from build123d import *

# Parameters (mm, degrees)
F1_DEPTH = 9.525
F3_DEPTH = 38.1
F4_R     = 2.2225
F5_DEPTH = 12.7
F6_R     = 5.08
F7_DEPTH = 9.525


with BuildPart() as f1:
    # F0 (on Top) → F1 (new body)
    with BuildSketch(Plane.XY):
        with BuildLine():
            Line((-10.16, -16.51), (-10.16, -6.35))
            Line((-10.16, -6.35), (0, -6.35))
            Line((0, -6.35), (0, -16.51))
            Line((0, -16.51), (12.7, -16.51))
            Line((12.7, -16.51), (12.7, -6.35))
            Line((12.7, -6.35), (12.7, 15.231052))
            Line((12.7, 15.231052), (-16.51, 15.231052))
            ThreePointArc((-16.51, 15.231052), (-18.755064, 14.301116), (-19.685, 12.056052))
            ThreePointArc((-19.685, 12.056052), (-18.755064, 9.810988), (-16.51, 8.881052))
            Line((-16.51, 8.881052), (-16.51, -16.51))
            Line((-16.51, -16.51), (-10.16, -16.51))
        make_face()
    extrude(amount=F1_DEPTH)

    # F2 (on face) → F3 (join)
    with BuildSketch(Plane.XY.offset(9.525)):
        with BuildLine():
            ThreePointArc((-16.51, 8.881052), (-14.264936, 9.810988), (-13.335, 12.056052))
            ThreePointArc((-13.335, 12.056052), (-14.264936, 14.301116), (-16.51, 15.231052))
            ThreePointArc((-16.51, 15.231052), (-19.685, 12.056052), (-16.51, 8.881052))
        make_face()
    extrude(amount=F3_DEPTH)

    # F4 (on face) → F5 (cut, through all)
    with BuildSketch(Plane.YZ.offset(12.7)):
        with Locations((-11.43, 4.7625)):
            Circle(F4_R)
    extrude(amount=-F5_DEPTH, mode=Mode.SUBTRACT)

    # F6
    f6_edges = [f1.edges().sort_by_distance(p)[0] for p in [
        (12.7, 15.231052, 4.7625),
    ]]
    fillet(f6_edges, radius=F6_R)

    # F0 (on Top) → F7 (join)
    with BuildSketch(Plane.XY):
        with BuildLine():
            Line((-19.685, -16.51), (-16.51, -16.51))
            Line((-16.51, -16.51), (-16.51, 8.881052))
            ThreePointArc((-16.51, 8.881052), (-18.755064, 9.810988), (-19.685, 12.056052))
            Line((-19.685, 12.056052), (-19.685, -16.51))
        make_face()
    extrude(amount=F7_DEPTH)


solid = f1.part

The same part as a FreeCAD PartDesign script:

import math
import FreeCAD as App
import Part
import Sketcher
from FreeCAD import Vector
Q = App.Units.Quantity


def edges_at(feature, points):
    """Names of the edges that pass closest to the given points."""
    edges = feature.Shape.Edges
    near = lambda p: min(range(len(edges)), key=lambda i: edges[i].distToShape(Part.Vertex(*p))[0])
    return sorted({f"Edge{near(p) + 1}" for p in points})

doc = App.newDocument("Part")
body = doc.addObject("PartDesign::Body", "Body")

# Sketch on XY plane
sketch1 = body.newObject("Sketcher::SketchObject", "Sketch")
sketch1.AttachmentSupport = (doc.getObject("XY_Plane"), [""])
sketch1.MapMode = "FlatFace"
sketch1.addGeometry(Part.LineSegment(Vector(-10.16, -16.51, 0), Vector(-10.16, -6.35, 0)), False)
sketch1.addGeometry(Part.LineSegment(Vector(-10.16, -6.35, 0), Vector(0, -6.35, 0)), False)
sketch1.addGeometry(Part.LineSegment(Vector(0, -6.35, 0), Vector(0, -16.51, 0)), False)
sketch1.addGeometry(Part.LineSegment(Vector(0, -16.51, 0), Vector(12.7, -16.51, 0)), False)
sketch1.addGeometry(Part.LineSegment(Vector(12.7, -16.51, 0), Vector(12.7, 15.231052, 0)), False)
sketch1.addGeometry(Part.LineSegment(Vector(12.7, 15.231052, 0), Vector(-16.51, 15.231052, 0)), False)
sketch1.addGeometry(Part.ArcOfCircle(Part.Circle(Vector(-16.51, 12.056052, 0), Vector(0, 0, 1), 3.175), math.radians(90.000002), math.radians(179.999998)), False)
sketch1.addGeometry(Part.ArcOfCircle(Part.Circle(Vector(-16.51, 12.056052, 0), Vector(0, 0, 1), 3.175), math.radians(-179.999998), math.radians(-90.000002)), False)
sketch1.addGeometry(Part.LineSegment(Vector(-16.51, 8.881052, 0), Vector(-16.51, -16.51, 0)), False)
sketch1.addGeometry(Part.LineSegment(Vector(-16.51, -16.51, 0), Vector(-10.16, -16.51, 0)), False)
sketch1.addConstraint(Sketcher.Constraint("Coincident", 0, 2, 1, 1))
sketch1.addConstraint(Sketcher.Constraint("Coincident", 1, 2, 2, 1))
sketch1.addConstraint(Sketcher.Constraint("Coincident", 2, 2, 3, 1))
sketch1.addConstraint(Sketcher.Constraint("Coincident", 3, 2, 4, 1))
sketch1.addConstraint(Sketcher.Constraint("Coincident", 4, 2, 5, 1))
sketch1.addConstraint(Sketcher.Constraint("Tangent", 5, 2, 6, 1))
sketch1.addConstraint(Sketcher.Constraint("Tangent", 6, 2, 7, 1))
sketch1.addConstraint(Sketcher.Constraint("Coincident", 7, 2, 8, 1))
sketch1.addConstraint(Sketcher.Constraint("Coincident", 8, 2, 9, 1))
sketch1.addConstraint(Sketcher.Constraint("Coincident", 9, 2, 0, 1))
sketch1.addConstraint(Sketcher.Constraint("Vertical", 0))
sketch1.addConstraint(Sketcher.Constraint("Horizontal", 1))
sketch1.addConstraint(Sketcher.Constraint("Vertical", 2))
sketch1.addConstraint(Sketcher.Constraint("Horizontal", 3))
sketch1.addConstraint(Sketcher.Constraint("Vertical", 4))
sketch1.addConstraint(Sketcher.Constraint("Horizontal", 5))
sketch1.addConstraint(Sketcher.Constraint("Vertical", 8))
sketch1.addConstraint(Sketcher.Constraint("Horizontal", 9))
sketch1.addConstraint(Sketcher.Constraint("Equal", 6, 7))
sketch1.addConstraint(Sketcher.Constraint("PointOnObject", 1, 2, -2))
sketch1.addConstraint(Sketcher.Constraint("Horizontal", 7, 3, 6, 2))
sketch1.addConstraint(Sketcher.Constraint("Horizontal", 3, 2, 8, 2))
sketch1.addConstraint(Sketcher.Constraint("Vertical", 5, 2, 7, 2))
sketch1.addConstraint(Sketcher.Constraint("Equal", 1, 0))
sketch1.addConstraint(Sketcher.Constraint("DistanceX", 1, 1, 1, 2, Q("0.4 in")))
sketch1.addConstraint(Sketcher.Constraint("DistanceX", 3, 1, 3, 2, Q("0.5 in")))
sketch1.addConstraint(Sketcher.Constraint("Radius", 6, Q("0.125 in")))
sketch1.addConstraint(Sketcher.Constraint("DistanceX", 5, 2, 5, 1, Q("1.15 in")))
sketch1.addConstraint(Sketcher.Constraint("DistanceY", 0, 2, -1, 1, Q("0.25 in")))
sketch1.addConstraint(Sketcher.Constraint("DistanceY", 4, 1, 4, 2, Q("31.741052 mm")))
pad1 = body.newObject("PartDesign::Pad", "Pad")
pad1.Profile = sketch1
pad1.Length = Q("0.375 in")

# Sketch on XY plane
sketch2 = body.newObject("Sketcher::SketchObject", "Sketch001")
sketch2.AttachmentSupport = (doc.getObject("XY_Plane"), [""])
sketch2.MapMode = "FlatFace"
sketch2.AttachmentOffset = App.Placement(Vector(0, 0, 0.375 * 25.4), App.Rotation())
sketch2.addGeometry(Part.ArcOfCircle(Part.Circle(Vector(-16.51, 12.056052, 0), Vector(0, 0, 1), 3.175), math.radians(-89.999998), math.radians(-0.000002)), False)
sketch2.addGeometry(Part.ArcOfCircle(Part.Circle(Vector(-16.51, 12.056052, 0), Vector(0, 0, 1), 3.175), math.radians(0.000002), math.radians(89.999998)), False)
sketch2.addGeometry(Part.ArcOfCircle(Part.Circle(Vector(-16.51, 12.056052, 0), Vector(0, 0, 1), 3.175), math.radians(90), math.radians(270)), False)
sketch2.addConstraint(Sketcher.Constraint("Tangent", 0, 2, 1, 1))
sketch2.addConstraint(Sketcher.Constraint("Tangent", 1, 2, 2, 1))
sketch2.addConstraint(Sketcher.Constraint("Tangent", 2, 2, 0, 1))
sketch2.addConstraint(Sketcher.Constraint("Horizontal", 2, 3, 0, 2))
sketch2.addConstraint(Sketcher.Constraint("Vertical", 2, 3, 1, 2))
sketch2.addConstraint(Sketcher.Constraint("Vertical", 1, 2, 2, 2))
sketch2.addConstraint(Sketcher.Constraint("Radius", 0, Q("0.125 in")))
sketch2.addConstraint(Sketcher.Constraint("DistanceX", 0, 3, -1, 1, Q("0.65 in")))
sketch2.addConstraint(Sketcher.Constraint("DistanceY", -1, 1, 1, 3, Q("12.056052 mm")))
pad2 = body.newObject("PartDesign::Pad", "Pad001")
pad2.Profile = sketch2
pad2.Length = Q("1.5 in")

# Sketch on YZ plane
sketch3 = body.newObject("Sketcher::SketchObject", "Sketch002")
sketch3.AttachmentSupport = (doc.getObject("YZ_Plane"), [""])
sketch3.MapMode = "FlatFace"
sketch3.AttachmentOffset = App.Placement(Vector(0, 0, 0.5 * 25.4), App.Rotation())
sketch3.addGeometry(Part.Circle(Vector(-11.43, 4.7625, 0), Vector(0, 0, 1), 2.2225), False)
sketch3.addConstraint(Sketcher.Constraint("Diameter", 0, Q("0.175 in")))
sketch3.addConstraint(Sketcher.Constraint("DistanceX", 0, 3, -1, 1, Q("0.45 in")))
sketch3.addConstraint(Sketcher.Constraint("DistanceY", -1, 1, 0, 3, Q("0.1875 in")))
pocket1 = body.newObject("PartDesign::Pocket", "Pocket")
pocket1.Profile = sketch3
pocket1.Length = Q("0.5 in")
doc.recompute()

fillet = body.newObject("PartDesign::Fillet", "Fillet")
fillet.Base = (pocket1, edges_at(pocket1, [(12.7, 15.231, 4.763)]))
fillet.Radius = Q("0.2 in")

# Sketch on XY plane
sketch4 = body.newObject("Sketcher::SketchObject", "Sketch003")
sketch4.AttachmentSupport = (doc.getObject("XY_Plane"), [""])
sketch4.MapMode = "FlatFace"
sketch4.addGeometry(Part.LineSegment(Vector(-19.685, -16.51, 0), Vector(-16.51, -16.51, 0)), False)
sketch4.addGeometry(Part.LineSegment(Vector(-16.51, -16.51, 0), Vector(-16.51, 8.881052, 0)), False)
sketch4.addGeometry(Part.ArcOfCircle(Part.Circle(Vector(-16.51, 12.056052, 0), Vector(0, 0, 1), 3.175), math.radians(-179.999998), math.radians(-90.000002)), False)
sketch4.addGeometry(Part.LineSegment(Vector(-19.685, 12.056052, 0), Vector(-19.685, -16.51, 0)), False)
sketch4.addConstraint(Sketcher.Constraint("Coincident", 0, 2, 1, 1))
sketch4.addConstraint(Sketcher.Constraint("Coincident", 1, 2, 2, 2))
sketch4.addConstraint(Sketcher.Constraint("Tangent", 2, 1, 3, 1))
sketch4.addConstraint(Sketcher.Constraint("Coincident", 3, 2, 0, 1))
sketch4.addConstraint(Sketcher.Constraint("Horizontal", 0))
sketch4.addConstraint(Sketcher.Constraint("Vertical", 1))
sketch4.addConstraint(Sketcher.Constraint("Vertical", 3))
sketch4.addConstraint(Sketcher.Constraint("Vertical", 2, 3, 0, 2))
sketch4.addConstraint(Sketcher.Constraint("Radius", 2, Q("0.125 in")))
sketch4.addConstraint(Sketcher.Constraint("DistanceX", 2, 3, -1, 1, Q("0.65 in")))
sketch4.addConstraint(Sketcher.Constraint("DistanceY", 0, 2, -1, 1, Q("0.65 in")))
sketch4.addConstraint(Sketcher.Constraint("DistanceY", 3, 2, 3, 1, Q("28.566052 mm")))
pad3 = body.newObject("PartDesign::Pad", "Pad002")
pad3.Profile = sketch4
pad3.Length = Q("0.375 in")

doc.recompute()
